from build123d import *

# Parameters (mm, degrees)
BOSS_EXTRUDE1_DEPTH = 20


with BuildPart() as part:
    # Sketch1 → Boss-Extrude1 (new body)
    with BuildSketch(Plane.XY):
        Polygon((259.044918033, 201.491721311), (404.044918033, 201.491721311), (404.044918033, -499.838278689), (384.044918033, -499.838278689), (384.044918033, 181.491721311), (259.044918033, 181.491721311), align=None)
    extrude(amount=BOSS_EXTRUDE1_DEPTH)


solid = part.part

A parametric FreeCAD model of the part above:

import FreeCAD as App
import Part
import Sketcher
from FreeCAD import Vector
Q = App.Units.Quantity

doc = App.newDocument("Part")
params = doc.addObject("Spreadsheet::Sheet", "Params")
for row, (alias, value) in enumerate([
    ("sketch1_width", "145 mm"),
    ("sketch1_width2", "125 mm"),
    ("sketch1_height", "681.33 mm"),
    ("pad1_length", "20 mm"),
], start=1):
    params.set(f"A{row}", alias)
    params.set(f"B{row}", "=" + value)
    params.setAlias(f"B{row}", alias)

body = doc.addObject("PartDesign::Body", "Body")

# Sketch on XY plane
sketch1 = body.newObject("Sketcher::SketchObject", "Sketch")
sketch1.AttachmentSupport = (doc.getObject("XY_Plane"), [""])
sketch1.MapMode = "FlatFace"
sketch1.addGeometry([
    Part.LineSegment(Vector(404, 201, 0), Vector(259, 201, 0)),  # 0
    Part.LineSegment(Vector(259, 201, 0), Vector(259, 181, 0)),  # 1
    Part.LineSegment(Vector(259, 181, 0), Vector(384, 181, 0)),  # 2
    Part.LineSegment(Vector(384, 181, 0), Vector(384, -500, 0)),  # 3
    Part.LineSegment(Vector(384, -500, 0), Vector(404, -500, 0)),  # 4
    Part.LineSegment(Vector(404, -500, 0), Vector(404, 201, 0)),  # 5
], False)
sketch1.addConstraint([
    Sketcher.Constraint("Coincident", 0, 2, 1, 1),
    Sketcher.Constraint("Coincident", 1, 2, 2, 1),
    Sketcher.Constraint("Coincident", 2, 2, 3, 1),
    Sketcher.Constraint("Coincident", 3, 2, 4, 1),
    Sketcher.Constraint("Coincident", 4, 2, 5, 1),
    Sketcher.Constraint("Coincident", 5, 2, 0, 1),
    Sketcher.Constraint("Horizontal", 0),
    Sketcher.Constraint("Vertical", 1),
    Sketcher.Constraint("Horizontal", 2),
    Sketcher.Constraint("Vertical", 3),
    Sketcher.Constraint("Horizontal", 4),
    Sketcher.Constraint("Vertical", 5),
    Sketcher.Constraint("Equal", 4, 1),
    Sketcher.Constraint("DistanceX", 0, 2, 0, 1, Q("145 mm")),
    Sketcher.Constraint("DistanceX", 2, 1, 2, 2, Q("125 mm")),
    Sketcher.Constraint("DistanceY", 3, 2, 3, 1, Q("681.33 mm")),
    Sketcher.Constraint("DistanceX", -1, 1, 0, 2, Q("259.044918 mm")),
    Sketcher.Constraint("DistanceY", -1, 1, 0, 2, Q("201.491721 mm")),
])
sketch1.setExpression("Constraints[13]", "Params.sketch1_width")
sketch1.setExpression("Constraints[14]", "Params.sketch1_width2")
sketch1.setExpression("Constraints[15]", "Params.sketch1_height")
pad1 = body.newObject("PartDesign::Pad", "Pad")
pad1.Profile = sketch1
pad1.setExpression("Length", "Params.pad1_length")

doc.recompute()
